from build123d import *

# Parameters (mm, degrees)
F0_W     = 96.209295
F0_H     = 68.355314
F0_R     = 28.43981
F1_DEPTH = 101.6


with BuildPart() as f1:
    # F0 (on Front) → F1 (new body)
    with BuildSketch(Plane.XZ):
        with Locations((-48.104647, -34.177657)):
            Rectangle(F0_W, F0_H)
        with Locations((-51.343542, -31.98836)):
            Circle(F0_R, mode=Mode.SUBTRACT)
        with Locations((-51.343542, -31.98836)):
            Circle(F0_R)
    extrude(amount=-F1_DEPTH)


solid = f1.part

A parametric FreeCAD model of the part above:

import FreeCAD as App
import Part
import Sketcher
Q = App.Units.Quantity


def add_polygon(sketch, points):
    """Adds a closed chain of lines whose ends are joined by coincident constraints."""
    first, n = sketch.GeometryCount, len(points)
    for a, b in zip(points, points[1:] + points[:1]):
        sketch.addGeometry(Part.LineSegment(App.Vector(*a, 0), App.Vector(*b, 0)), False)
    for i in range(n):
        sketch.addConstraint(Sketcher.Constraint("Coincident", first + i, 2, first + (i + 1) % n, 1))

doc = App.newDocument("Part")
params = doc.addObject("Spreadsheet::Sheet", "Params")
for row, (alias, value) in enumerate([
    ("pad1_length", "4 in"),
], start=1):
    params.set(f"A{row}", alias)
    params.set(f"B{row}", "=" + value)
    params.setAlias(f"B{row}", alias)

body = doc.addObject("PartDesign::Body", "Body")

sketch1 = body.newObject("Sketcher::SketchObject", "Sketch")
sketch1.AttachmentSupport = (doc.getObject("XZ_Plane"), [""])
sketch1.MapMode = "FlatFace"
add_polygon(sketch1, [(-96, 0), (-96, -68), (0, -68), (0, 0)])
sketch1.addConstraint([
    Sketcher.Constraint("Vertical", 0),
    Sketcher.Constraint("Horizontal", 1),
    Sketcher.Constraint("Vertical", 2),
    Sketcher.Constraint("Horizontal", 3),
    Sketcher.Constraint("Coincident", 2, 2, -1, 1),
    Sketcher.Constraint("DistanceX", 1, 1, 1, 2, Q("96.209295 mm")),
    Sketcher.Constraint("DistanceY", 0, 2, 0, 1, Q("68.355314 mm")),
])
pad1 = body.newObject("PartDesign::Pad", "Pad")
pad1.Profile = sketch1
pad1.setExpression("Length", "Params.pad1_length")
pad1.Reversed = True

doc.recompute()
